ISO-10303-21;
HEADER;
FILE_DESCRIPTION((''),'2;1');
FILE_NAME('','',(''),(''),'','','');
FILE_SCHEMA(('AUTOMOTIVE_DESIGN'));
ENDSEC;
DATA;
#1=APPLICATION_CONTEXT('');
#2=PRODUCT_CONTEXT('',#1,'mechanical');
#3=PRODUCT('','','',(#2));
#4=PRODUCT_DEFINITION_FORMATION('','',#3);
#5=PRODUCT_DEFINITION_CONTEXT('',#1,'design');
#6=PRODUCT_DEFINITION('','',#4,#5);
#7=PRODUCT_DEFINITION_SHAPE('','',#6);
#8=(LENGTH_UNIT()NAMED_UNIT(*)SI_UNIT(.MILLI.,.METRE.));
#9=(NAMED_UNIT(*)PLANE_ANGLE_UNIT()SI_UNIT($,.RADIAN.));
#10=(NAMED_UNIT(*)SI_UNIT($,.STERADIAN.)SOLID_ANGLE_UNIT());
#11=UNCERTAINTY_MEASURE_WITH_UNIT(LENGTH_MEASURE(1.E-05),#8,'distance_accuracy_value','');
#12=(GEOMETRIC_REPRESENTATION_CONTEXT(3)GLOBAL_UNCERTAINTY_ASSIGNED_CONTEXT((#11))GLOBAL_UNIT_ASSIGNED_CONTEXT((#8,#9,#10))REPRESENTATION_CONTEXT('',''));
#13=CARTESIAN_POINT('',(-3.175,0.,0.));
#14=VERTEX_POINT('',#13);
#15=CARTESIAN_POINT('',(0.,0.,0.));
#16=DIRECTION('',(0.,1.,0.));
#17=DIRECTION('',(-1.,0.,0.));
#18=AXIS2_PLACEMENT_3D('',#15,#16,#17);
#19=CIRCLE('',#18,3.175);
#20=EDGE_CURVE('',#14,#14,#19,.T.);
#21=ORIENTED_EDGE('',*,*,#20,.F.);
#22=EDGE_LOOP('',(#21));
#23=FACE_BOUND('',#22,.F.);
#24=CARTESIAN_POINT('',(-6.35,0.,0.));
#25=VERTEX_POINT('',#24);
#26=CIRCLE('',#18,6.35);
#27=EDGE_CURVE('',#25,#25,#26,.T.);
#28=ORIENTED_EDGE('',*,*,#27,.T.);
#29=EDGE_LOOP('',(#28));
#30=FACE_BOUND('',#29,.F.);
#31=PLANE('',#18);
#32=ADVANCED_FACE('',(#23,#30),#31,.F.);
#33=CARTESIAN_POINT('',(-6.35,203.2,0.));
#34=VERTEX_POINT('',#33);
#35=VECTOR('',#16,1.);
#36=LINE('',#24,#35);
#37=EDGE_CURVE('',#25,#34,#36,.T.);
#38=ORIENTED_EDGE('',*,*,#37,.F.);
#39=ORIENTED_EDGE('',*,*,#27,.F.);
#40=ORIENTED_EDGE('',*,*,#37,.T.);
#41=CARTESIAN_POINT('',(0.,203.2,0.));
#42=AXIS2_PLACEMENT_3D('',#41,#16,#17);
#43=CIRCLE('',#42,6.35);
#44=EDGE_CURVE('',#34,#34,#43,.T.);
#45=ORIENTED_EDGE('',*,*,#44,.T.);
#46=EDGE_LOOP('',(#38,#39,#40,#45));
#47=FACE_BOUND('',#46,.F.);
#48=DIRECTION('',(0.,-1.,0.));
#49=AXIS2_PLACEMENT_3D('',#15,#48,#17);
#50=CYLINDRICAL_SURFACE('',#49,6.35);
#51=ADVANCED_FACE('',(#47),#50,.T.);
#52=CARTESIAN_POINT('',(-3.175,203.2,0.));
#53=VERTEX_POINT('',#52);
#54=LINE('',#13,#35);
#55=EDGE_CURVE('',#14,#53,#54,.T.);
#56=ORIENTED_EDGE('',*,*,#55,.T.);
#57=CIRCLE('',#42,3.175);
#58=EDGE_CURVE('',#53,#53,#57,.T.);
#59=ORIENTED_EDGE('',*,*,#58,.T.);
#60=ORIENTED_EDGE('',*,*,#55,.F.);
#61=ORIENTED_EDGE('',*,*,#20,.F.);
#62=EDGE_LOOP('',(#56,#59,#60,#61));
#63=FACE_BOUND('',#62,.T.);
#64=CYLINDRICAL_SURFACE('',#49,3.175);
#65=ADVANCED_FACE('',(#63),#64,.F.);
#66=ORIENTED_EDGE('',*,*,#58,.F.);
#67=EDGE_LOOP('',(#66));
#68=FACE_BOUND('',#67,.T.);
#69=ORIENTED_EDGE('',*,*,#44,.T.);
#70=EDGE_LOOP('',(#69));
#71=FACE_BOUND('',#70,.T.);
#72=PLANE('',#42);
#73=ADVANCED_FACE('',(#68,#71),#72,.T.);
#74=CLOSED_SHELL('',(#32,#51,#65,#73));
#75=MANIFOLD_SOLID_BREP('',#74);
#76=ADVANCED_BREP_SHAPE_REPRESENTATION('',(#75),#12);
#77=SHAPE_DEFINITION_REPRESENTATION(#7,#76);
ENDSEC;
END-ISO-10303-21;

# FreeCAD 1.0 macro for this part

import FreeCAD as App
import Part
import Sketcher
Q = App.Units.Quantity

doc = App.newDocument("Part")
body = doc.addObject("PartDesign::Body", "Body")

sketch1 = body.newObject("Sketcher::SketchObject", "Sketch")
sketch1.AttachmentSupport = (doc.getObject("XZ_Plane"), [""])
sketch1.MapMode = "FlatFace"
sketch1.addGeometry(Part.Circle(App.Vector(0, 0, 0), App.Vector(0, 0, 1), 6.35), False)
sketch1.addGeometry(Part.Circle(App.Vector(0, 0, 0), App.Vector(0, 0, 1), 3.175), False)
sketch1.addConstraint(Sketcher.Constraint("Coincident", 0, 3, -1, 1))
sketch1.addConstraint(Sketcher.Constraint("Coincident", 1, 3, -1, 1))
sketch1.addConstraint(Sketcher.Constraint("Diameter", 0, Q("0.5 in")))
sketch1.addConstraint(Sketcher.Constraint("Diameter", 1, Q("0.25 in")))
pad1 = body.newObject("PartDesign::Pad", "Pad")
pad1.Profile = sketch1
pad1.Length = Q("8 in")
pad1.Reversed = True

doc.recompute()
